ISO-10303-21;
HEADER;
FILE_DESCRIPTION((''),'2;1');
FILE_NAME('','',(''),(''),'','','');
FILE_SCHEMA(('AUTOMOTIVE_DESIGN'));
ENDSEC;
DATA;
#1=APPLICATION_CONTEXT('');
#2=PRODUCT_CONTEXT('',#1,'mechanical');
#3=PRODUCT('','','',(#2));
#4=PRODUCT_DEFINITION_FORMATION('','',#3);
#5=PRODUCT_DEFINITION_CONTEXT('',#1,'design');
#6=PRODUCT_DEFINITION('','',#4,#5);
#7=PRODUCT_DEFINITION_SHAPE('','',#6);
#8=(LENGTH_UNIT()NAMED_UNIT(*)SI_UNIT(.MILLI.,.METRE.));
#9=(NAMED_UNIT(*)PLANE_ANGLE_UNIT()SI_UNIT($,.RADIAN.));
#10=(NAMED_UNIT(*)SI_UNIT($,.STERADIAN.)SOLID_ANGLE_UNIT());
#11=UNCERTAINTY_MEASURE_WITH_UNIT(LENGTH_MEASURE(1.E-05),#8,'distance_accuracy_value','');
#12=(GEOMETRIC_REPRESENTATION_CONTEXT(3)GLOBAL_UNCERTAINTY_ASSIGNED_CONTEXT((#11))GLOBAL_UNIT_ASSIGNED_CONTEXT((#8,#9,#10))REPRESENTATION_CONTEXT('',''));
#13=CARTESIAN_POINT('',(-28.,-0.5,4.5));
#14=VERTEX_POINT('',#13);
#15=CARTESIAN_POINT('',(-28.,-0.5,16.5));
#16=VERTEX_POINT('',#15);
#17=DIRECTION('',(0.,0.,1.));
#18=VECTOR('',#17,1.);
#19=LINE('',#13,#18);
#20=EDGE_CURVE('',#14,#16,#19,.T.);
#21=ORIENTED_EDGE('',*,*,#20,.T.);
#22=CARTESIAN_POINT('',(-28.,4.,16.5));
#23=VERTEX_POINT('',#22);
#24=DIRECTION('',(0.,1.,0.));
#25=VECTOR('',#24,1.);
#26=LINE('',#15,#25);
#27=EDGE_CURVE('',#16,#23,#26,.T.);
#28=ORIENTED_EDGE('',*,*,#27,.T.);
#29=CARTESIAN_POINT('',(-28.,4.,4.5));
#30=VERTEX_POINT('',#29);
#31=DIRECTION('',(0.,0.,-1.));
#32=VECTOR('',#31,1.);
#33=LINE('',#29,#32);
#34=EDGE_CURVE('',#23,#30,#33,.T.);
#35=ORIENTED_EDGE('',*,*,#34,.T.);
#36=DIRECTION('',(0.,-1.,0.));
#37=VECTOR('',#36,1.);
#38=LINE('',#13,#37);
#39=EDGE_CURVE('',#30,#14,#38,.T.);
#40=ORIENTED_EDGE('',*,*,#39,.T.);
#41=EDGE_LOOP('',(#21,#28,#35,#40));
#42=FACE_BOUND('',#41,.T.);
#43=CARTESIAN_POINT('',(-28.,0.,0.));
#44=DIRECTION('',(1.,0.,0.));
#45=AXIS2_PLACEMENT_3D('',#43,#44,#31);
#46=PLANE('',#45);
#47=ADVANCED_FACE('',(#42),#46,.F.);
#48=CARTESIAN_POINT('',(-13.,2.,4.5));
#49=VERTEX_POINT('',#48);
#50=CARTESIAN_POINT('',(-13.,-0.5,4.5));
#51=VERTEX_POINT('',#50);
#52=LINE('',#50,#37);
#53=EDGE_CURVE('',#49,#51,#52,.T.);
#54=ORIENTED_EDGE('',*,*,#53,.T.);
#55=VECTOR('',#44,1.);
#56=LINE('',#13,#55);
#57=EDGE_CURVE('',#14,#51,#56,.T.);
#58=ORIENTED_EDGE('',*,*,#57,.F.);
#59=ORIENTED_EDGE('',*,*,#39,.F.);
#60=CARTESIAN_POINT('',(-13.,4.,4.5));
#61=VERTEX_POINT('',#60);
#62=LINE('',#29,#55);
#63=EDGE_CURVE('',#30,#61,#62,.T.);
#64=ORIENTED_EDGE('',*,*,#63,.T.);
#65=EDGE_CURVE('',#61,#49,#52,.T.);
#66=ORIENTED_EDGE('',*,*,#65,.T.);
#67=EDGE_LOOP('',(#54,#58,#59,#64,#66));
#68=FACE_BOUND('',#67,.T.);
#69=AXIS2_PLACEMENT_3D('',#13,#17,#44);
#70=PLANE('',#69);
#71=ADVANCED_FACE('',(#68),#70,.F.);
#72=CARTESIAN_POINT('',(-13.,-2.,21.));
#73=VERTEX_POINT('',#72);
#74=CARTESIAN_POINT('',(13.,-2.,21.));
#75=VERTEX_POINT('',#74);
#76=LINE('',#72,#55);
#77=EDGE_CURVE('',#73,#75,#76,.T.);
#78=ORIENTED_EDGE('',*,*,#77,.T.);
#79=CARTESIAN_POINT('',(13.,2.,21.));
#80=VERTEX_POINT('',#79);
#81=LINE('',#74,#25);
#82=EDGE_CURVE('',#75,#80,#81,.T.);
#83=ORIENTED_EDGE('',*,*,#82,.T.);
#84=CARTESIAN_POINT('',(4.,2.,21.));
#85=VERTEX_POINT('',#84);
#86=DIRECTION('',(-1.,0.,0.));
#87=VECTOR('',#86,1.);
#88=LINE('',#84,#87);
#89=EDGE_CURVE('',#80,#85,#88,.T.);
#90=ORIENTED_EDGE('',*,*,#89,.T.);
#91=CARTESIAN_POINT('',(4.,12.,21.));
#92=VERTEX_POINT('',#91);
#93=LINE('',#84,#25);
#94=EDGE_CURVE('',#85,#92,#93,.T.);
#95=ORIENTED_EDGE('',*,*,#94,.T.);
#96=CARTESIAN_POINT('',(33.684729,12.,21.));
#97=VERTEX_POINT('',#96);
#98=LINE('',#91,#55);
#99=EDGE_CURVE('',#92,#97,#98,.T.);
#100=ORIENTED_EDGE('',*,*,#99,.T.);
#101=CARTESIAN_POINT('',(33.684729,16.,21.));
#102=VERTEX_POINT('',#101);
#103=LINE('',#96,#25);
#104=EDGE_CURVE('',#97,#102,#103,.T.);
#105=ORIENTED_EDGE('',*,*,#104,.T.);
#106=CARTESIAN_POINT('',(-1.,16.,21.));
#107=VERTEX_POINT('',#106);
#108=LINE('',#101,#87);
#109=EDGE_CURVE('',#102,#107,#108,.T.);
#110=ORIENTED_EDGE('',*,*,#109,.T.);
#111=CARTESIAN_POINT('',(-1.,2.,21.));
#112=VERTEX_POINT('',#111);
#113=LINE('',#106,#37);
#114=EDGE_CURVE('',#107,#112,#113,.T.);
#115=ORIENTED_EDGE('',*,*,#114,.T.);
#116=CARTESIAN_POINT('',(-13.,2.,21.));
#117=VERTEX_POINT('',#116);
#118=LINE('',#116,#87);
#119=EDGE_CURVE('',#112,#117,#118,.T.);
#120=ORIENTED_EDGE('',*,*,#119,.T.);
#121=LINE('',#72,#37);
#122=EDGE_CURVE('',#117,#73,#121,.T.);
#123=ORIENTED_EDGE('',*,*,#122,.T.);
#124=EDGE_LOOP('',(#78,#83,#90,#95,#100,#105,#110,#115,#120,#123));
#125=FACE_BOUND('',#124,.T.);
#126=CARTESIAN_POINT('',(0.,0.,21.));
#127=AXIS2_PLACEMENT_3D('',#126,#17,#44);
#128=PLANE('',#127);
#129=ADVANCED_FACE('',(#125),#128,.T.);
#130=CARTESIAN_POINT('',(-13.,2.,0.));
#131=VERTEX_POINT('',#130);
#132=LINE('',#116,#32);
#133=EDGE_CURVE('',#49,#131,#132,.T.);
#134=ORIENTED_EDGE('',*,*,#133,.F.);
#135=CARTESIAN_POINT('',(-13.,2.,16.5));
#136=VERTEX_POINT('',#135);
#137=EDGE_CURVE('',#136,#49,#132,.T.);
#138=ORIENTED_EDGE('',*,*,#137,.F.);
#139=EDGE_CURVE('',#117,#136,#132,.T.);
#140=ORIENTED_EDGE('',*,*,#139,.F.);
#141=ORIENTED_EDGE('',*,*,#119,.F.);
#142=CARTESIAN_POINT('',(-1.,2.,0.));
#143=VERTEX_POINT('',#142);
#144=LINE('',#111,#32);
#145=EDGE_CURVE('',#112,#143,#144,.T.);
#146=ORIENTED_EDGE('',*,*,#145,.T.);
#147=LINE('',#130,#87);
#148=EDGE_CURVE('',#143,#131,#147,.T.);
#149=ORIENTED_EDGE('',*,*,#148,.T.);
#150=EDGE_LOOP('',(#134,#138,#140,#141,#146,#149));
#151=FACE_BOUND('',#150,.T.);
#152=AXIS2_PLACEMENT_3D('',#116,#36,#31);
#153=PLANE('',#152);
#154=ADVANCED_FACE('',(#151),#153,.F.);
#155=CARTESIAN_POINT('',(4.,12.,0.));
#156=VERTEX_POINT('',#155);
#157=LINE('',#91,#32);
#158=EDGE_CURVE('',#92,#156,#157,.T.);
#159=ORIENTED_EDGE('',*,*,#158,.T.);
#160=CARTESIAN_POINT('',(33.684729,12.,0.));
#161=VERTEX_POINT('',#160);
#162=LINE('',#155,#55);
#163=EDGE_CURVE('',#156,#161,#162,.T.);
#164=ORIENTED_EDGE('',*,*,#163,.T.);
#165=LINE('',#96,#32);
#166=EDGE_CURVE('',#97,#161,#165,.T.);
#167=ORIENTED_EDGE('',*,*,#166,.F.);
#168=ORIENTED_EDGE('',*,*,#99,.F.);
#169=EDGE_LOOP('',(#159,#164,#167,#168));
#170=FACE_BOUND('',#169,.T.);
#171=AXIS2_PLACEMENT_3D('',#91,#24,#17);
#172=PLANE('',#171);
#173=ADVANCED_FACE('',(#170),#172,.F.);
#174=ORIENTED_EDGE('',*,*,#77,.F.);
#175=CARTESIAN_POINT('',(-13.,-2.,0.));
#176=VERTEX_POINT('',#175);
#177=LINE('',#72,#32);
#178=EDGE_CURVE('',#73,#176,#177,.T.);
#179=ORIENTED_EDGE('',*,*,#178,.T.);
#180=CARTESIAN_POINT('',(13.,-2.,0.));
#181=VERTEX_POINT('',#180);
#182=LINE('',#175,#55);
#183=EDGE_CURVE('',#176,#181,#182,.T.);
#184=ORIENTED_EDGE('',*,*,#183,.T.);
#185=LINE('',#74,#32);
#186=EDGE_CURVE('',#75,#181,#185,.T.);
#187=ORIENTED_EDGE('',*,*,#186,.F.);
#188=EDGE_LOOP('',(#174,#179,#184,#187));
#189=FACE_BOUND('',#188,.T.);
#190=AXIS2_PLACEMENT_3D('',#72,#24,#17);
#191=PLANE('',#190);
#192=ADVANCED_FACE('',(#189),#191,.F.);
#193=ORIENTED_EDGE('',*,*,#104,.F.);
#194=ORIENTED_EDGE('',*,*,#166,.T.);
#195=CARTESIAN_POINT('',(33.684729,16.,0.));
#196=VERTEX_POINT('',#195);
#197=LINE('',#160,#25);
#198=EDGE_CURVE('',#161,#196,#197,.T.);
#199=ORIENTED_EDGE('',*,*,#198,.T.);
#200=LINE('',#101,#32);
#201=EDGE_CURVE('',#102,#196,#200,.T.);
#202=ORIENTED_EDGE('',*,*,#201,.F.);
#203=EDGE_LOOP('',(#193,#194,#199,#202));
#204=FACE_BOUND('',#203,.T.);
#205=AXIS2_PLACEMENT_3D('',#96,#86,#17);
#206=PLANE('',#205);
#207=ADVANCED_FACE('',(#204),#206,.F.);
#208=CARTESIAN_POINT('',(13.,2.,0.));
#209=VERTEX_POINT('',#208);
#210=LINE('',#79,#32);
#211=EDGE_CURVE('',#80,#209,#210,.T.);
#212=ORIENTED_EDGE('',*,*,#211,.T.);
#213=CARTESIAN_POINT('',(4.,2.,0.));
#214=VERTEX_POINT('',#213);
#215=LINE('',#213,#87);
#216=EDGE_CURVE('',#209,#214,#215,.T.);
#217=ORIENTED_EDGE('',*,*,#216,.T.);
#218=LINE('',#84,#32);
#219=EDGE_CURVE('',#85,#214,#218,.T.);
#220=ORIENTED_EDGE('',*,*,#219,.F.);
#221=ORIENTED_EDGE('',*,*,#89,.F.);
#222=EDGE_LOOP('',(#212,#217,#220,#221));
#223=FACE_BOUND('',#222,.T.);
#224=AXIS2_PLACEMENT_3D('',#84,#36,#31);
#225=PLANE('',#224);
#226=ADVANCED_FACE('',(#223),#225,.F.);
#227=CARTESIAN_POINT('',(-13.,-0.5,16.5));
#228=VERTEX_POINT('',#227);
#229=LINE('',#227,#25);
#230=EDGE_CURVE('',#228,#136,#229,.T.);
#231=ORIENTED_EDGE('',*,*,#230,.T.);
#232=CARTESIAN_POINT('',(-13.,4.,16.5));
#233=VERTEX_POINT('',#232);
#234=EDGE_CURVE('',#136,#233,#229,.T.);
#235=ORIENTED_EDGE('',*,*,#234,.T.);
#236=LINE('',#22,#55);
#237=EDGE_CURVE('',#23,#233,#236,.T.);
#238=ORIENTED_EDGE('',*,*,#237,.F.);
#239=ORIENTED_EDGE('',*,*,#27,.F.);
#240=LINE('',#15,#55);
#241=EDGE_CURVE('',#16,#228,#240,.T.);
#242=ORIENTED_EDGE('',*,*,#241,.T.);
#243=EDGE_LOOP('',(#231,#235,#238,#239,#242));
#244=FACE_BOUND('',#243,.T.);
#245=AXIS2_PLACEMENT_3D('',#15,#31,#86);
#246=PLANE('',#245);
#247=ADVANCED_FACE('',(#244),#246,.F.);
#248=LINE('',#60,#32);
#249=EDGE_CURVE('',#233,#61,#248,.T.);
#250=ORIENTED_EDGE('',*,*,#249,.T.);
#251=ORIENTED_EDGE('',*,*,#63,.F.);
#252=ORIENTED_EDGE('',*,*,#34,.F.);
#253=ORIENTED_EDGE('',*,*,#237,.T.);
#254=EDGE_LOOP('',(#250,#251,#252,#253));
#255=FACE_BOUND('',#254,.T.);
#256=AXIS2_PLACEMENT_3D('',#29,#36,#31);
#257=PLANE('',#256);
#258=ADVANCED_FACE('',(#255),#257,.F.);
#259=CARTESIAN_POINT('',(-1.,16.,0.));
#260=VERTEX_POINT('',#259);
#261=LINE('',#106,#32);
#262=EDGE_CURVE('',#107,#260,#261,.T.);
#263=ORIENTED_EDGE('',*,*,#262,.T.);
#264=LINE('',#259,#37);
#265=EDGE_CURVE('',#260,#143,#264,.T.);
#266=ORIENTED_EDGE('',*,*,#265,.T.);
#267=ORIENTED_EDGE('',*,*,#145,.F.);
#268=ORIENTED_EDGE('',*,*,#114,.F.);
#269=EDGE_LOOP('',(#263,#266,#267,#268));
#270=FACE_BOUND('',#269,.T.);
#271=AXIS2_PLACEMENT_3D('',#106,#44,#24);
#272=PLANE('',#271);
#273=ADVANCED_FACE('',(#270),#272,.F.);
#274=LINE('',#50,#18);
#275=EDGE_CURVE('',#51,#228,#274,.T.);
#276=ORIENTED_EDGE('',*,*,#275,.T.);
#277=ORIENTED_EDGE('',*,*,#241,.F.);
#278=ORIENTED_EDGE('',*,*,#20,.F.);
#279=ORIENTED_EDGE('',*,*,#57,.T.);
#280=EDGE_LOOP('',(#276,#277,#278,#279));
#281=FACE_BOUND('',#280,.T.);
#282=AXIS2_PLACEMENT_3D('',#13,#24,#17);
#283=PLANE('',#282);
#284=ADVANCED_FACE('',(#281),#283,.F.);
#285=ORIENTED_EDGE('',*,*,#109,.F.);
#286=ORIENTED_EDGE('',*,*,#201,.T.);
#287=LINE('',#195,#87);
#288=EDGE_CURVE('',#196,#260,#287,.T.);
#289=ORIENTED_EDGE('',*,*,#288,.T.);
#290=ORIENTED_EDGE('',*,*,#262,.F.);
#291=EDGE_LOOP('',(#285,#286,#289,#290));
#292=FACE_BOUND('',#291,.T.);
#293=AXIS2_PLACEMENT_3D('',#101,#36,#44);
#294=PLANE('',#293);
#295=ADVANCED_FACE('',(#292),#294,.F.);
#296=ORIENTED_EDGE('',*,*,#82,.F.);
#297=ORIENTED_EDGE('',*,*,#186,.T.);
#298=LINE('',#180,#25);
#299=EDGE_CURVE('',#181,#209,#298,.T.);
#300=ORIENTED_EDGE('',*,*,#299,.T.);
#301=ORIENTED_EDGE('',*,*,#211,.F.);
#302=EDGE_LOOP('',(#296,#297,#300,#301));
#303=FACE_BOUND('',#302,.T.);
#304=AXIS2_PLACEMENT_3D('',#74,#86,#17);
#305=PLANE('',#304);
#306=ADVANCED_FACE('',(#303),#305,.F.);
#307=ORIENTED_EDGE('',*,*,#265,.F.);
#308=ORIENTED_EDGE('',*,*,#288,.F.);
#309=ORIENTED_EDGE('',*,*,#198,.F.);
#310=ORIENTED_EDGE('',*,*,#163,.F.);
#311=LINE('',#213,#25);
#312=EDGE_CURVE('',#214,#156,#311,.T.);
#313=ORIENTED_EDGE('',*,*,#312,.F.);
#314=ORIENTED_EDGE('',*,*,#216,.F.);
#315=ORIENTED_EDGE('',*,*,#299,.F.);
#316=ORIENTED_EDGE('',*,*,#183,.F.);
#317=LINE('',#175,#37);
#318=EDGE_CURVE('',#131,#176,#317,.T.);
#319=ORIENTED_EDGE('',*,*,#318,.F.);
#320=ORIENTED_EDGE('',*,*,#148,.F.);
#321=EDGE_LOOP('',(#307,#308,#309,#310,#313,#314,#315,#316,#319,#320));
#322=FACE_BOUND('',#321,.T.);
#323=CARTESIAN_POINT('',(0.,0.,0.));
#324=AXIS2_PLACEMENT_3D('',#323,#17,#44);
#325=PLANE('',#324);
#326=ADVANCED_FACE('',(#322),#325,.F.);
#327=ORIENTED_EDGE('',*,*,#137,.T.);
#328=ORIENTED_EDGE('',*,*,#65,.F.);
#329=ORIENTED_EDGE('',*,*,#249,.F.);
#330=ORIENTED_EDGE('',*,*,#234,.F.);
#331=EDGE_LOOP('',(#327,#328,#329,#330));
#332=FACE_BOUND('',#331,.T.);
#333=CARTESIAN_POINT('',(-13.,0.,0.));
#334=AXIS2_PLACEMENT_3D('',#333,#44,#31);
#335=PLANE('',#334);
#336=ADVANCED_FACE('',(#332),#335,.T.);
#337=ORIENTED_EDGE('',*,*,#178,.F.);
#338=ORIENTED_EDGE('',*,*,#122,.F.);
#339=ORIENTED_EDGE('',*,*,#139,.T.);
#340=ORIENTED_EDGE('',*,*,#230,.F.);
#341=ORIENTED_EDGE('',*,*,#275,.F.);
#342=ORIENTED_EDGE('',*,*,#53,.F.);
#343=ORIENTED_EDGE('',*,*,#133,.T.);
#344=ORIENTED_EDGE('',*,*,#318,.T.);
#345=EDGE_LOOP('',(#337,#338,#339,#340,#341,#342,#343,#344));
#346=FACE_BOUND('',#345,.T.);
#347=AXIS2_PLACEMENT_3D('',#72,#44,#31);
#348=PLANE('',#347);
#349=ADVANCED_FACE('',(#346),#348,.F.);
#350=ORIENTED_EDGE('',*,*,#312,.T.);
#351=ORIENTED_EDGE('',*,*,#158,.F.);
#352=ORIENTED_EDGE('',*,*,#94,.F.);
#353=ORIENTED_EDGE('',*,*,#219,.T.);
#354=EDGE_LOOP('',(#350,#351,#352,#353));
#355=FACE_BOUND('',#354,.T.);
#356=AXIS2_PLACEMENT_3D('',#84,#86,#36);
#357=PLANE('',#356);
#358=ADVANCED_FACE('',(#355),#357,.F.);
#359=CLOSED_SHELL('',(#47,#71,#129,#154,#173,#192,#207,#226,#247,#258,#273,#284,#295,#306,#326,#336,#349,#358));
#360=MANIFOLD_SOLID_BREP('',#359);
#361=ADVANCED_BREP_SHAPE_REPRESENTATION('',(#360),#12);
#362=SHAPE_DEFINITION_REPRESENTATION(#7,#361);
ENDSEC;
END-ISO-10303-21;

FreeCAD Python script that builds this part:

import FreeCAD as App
import Part
import Sketcher


def add_polygon(sketch, points):
    """Adds a closed chain of lines whose ends are joined by coincident constraints."""
    first, n = sketch.GeometryCount, len(points)
    for a, b in zip(points, points[1:] + points[:1]):
        sketch.addGeometry(Part.LineSegment(App.Vector(*a, 0), App.Vector(*b, 0)), False)
    for i in range(n):
        sketch.addConstraint(Sketcher.Constraint("Coincident", first + i, 2, first + (i + 1) % n, 1))

doc = App.newDocument("Part")
body = doc.addObject("PartDesign::Body", "Body")

sketch1 = body.newObject("Sketcher::SketchObject", "Sketch")
sketch1.AttachmentSupport = (doc.getObject("XY_Plane"), [""])
sketch1.MapMode = "FlatFace"
add_polygon(sketch1, [(4, 2), (4, 12), (33.7, 12), (33.7, 16), (-1, 16), (-1, 2), (-13, 2), (-13, -2), (13, -2), (13, 2)])
sketch1.addConstraint(Sketcher.Constraint("Vertical", 0))
sketch1.addConstraint(Sketcher.Constraint("Horizontal", 1))
sketch1.addConstraint(Sketcher.Constraint("Vertical", 2))
sketch1.addConstraint(Sketcher.Constraint("Horizontal", 3))
sketch1.addConstraint(Sketcher.Constraint("Vertical", 4))
sketch1.addConstraint(Sketcher.Constraint("Horizontal", 5))
sketch1.addConstraint(Sketcher.Constraint("Vertical", 6))
sketch1.addConstraint(Sketcher.Constraint("Horizontal", 7))
sketch1.addConstraint(Sketcher.Constraint("Vertical", 8))
sketch1.addConstraint(Sketcher.Constraint("Horizontal", 9))
sketch1.addConstraint(Sketcher.Constraint("Symmetric", 5, 2, 7, 2, -1, 1))
sketch1.addConstraint(Sketcher.Constraint("Horizontal", 5, 2, 8, 2))
sketch1.addConstraint(Sketcher.Constraint("Equal", 2, 6))
sketch1.addConstraint(Sketcher.Constraint("DistanceX", 5, 2, 5, 1, 12.0))
sketch1.addConstraint(Sketcher.Constraint("DistanceX", 7, 1, 7, 2, 26.0))
sketch1.addConstraint(Sketcher.Constraint("DistanceX", 9, 2, 9, 1, 9.0))
sketch1.addConstraint(Sketcher.Constraint("DistanceY", 0, 1, 0, 2, 10.0))
sketch1.addConstraint(Sketcher.Constraint("DistanceY", 2, 1, 2, 2, 4.0))
sketch1.addConstraint(Sketcher.Constraint("DistanceX", 1, 1, 1, 2, 29.684729))
pad1 = body.newObject("PartDesign::Pad", "Pad")
pad1.Profile = sketch1
pad1.Length = 21

sketch2 = body.newObject("Sketcher::SketchObject", "Sketch001")
sketch2.AttachmentSupport = (doc.getObject("YZ_Plane"), [""])
sketch2.MapMode = "FlatFace"
sketch2.AttachmentOffset = App.Placement(App.Vector(0, 0, -13), App.Rotation())
add_polygon(sketch2, [(4, 4.5), (-0.5, 4.5), (-0.5, 16.5), (4, 16.5)])
sketch2.addConstraint(Sketcher.Constraint("Horizontal", 0))
sketch2.addConstraint(Sketcher.Constraint("Vertical", 1))
sketch2.addConstraint(Sketcher.Constraint("Horizontal", 2))
sketch2.addConstraint(Sketcher.Constraint("Vertical", 3))
sketch2.addConstraint(Sketcher.Constraint("DistanceY", 1, 1, 1, 2, 12.0))
sketch2.addConstraint(Sketcher.Constraint("DistanceX", 0, 2, 0, 1, 4.5))
sketch2.addConstraint(Sketcher.Constraint("DistanceX", -1, 1, 2, 2, 4.0))
sketch2.addConstraint(Sketcher.Constraint("DistanceY", -1, 1, 0, 2, 4.5))
pad2 = body.newObject("PartDesign::Pad", "Pad001")
pad2.Profile = sketch2
pad2.Length = 15
pad2.Reversed = True

doc.recompute()
